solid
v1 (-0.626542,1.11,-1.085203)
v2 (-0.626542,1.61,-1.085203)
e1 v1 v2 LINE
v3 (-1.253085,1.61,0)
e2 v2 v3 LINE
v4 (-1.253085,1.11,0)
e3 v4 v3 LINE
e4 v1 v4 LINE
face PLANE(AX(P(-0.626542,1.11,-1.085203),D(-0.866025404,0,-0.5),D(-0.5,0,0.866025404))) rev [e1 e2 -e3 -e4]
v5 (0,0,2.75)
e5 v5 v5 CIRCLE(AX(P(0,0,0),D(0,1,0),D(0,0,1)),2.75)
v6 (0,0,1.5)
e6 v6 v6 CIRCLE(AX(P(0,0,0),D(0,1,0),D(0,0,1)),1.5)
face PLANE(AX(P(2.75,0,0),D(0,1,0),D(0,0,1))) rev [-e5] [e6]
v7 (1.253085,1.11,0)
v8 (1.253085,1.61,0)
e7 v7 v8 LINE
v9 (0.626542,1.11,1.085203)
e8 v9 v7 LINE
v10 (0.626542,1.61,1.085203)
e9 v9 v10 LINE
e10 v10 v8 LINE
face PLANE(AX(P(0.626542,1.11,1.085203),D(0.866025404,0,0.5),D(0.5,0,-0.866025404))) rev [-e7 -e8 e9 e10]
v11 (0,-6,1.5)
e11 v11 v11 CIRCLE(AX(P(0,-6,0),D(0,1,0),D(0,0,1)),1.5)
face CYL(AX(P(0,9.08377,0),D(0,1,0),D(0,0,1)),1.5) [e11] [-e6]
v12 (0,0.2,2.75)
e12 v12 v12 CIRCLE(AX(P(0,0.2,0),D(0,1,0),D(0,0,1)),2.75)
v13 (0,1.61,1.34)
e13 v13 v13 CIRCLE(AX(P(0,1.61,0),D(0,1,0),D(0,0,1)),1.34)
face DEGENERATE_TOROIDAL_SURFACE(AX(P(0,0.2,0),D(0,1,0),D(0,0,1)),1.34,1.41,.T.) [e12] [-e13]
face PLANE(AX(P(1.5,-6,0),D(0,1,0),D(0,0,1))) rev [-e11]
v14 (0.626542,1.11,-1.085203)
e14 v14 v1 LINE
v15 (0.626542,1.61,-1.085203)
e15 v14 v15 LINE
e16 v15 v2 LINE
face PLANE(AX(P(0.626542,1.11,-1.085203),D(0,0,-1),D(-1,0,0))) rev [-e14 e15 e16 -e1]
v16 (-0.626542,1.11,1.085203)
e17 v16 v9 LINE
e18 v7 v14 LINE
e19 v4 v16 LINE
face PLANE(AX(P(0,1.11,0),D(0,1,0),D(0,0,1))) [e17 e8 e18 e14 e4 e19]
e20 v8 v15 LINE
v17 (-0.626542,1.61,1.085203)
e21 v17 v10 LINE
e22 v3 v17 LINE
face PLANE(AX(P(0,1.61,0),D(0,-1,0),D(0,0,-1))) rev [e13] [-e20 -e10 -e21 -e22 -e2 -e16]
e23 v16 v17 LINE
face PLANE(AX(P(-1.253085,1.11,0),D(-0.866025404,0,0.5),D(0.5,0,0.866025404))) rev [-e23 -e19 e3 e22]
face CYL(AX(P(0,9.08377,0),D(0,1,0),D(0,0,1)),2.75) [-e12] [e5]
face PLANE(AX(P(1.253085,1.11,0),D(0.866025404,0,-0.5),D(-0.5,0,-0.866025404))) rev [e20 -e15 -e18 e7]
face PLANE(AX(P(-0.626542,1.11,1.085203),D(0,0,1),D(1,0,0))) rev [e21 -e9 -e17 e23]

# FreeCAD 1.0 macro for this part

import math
import FreeCAD as App
import Part
import Sketcher
from FreeCAD import Vector
Q = App.Units.Quantity

doc = App.newDocument("Part")
body = doc.addObject("PartDesign::Body", "Body")

sketch1 = body.newObject("Sketcher::SketchObject", "Sketch")
sketch1.AttachmentSupport = (doc.getObject("XY_Plane"), [""])
sketch1.MapMode = "FlatFace"
sketch1.addGeometry([
    Part.LineSegment(Vector(1.34, 1.61, 0), Vector(0, 1.61, 0)),
    Part.LineSegment(Vector(0, 1.61, 0), Vector(0, -6, 0)),
    Part.LineSegment(Vector(0, -6, 0), Vector(1.5, -6, 0)),
    Part.LineSegment(Vector(1.5, -6, 0), Vector(1.5, 0, 0)),
    Part.LineSegment(Vector(1.5, 0, 0), Vector(2.75, 0, 0)),
    Part.LineSegment(Vector(2.75, 0, 0), Vector(2.75, 0.2, 0)),
    Part.ArcOfCircle(Part.Circle(Vector(1.34, 0.2, 0), Vector(0, 0, 1), 1.41), math.radians(0), math.radians(90)),
], False)
sketch1.addConstraint([
    Sketcher.Constraint("Coincident", 0, 2, 1, 1),
    Sketcher.Constraint("Coincident", 1, 2, 2, 1),
    Sketcher.Constraint("Coincident", 2, 2, 3, 1),
    Sketcher.Constraint("Coincident", 3, 2, 4, 1),
    Sketcher.Constraint("Coincident", 4, 2, 5, 1),
    Sketcher.Constraint("Tangent", 5, 2, 6, 1),
    Sketcher.Constraint("Tangent", 6, 2, 0, 1),
    Sketcher.Constraint("Horizontal", 0),
    Sketcher.Constraint("Vertical", 1),
    Sketcher.Constraint("Horizontal", 2),
    Sketcher.Constraint("Vertical", 3),
    Sketcher.Constraint("Horizontal", 4),
    Sketcher.Constraint("Vertical", 5),
    Sketcher.Constraint("PointOnObject", 0, 2, -2),
    Sketcher.Constraint("PointOnObject", 3, 2, -1),
    Sketcher.Constraint("DistanceY", 3, 1, 3, 2, 6.0),
    Sketcher.Constraint("Radius", 6, 1.41),
    Sketcher.Constraint("DistanceX", 2, 1, 2, 2, 1.5),
    Sketcher.Constraint("DistanceY", 5, 1, 5, 2, 0.2),
    Sketcher.Constraint("DistanceX", 0, 2, 0, 1, 1.34),
])
revolution = body.newObject("PartDesign::Revolution", "Revolution")
revolution.Profile = sketch1
revolution.ReferenceAxis = (sketch1, ["V_Axis"])
revolution.Angle = 360

sketch2 = body.newObject("Sketcher::SketchObject", "Sketch001")
sketch2.AttachmentSupport = (doc.getObject("XZ_Plane"), [""])
sketch2.MapMode = "FlatFace"
sketch2.AttachmentOffset = App.Placement(Vector(0, 0, -1.61), App.Rotation())
sketch2.addGeometry([
    Part.LineSegment(Vector(0.6, -1.1, 0), Vector(-0.6, -1.1, 0)),
    Part.LineSegment(Vector(-0.6, -1.1, 0), Vector(-1.3, 0, 0)),
    Part.LineSegment(Vector(-1.3, 0, 0), Vector(-0.6, 1.1, 0)),
    Part.LineSegment(Vector(-0.6, 1.1, 0), Vector(0.6, 1.1, 0)),
    Part.LineSegment(Vector(0.6, 1.1, 0), Vector(1.3, 0, 0)),
    Part.LineSegment(Vector(1.3, 0, 0), Vector(0.6, -1.1, 0)),
], False)
sketch2.addConstraint([
    Sketcher.Constraint("Coincident", 0, 2, 1, 1),
    Sketcher.Constraint("Coincident", 1, 2, 2, 1),
    Sketcher.Constraint("Coincident", 2, 2, 3, 1),
    Sketcher.Constraint("Coincident", 3, 2, 4, 1),
    Sketcher.Constraint("Coincident", 4, 2, 5, 1),
    Sketcher.Constraint("Coincident", 5, 2, 0, 1),
    Sketcher.Constraint("Horizontal", 0),
    Sketcher.Constraint("Horizontal", 3),
    Sketcher.Constraint("Symmetric", 0, 2, 3, 2, -1, 1),
    Sketcher.Constraint("Symmetric", 1, 2, 4, 2, -1, 1),
    Sketcher.Constraint("PointOnObject", 1, 2, -1),
    Sketcher.Constraint("Parallel", 2, 5),
    Sketcher.Constraint("Vertical", 0, 2, 2, 2),
    Sketcher.Constraint("Angle", 1, Q("120 deg")),
    Sketcher.Constraint("DistanceX", 0, 2, 0, 1, 1.253085),
    Sketcher.Constraint("DistanceX", 1, 2, 4, 2, 2.50617),
])
pocket1 = body.newObject("PartDesign::Pocket", "Pocket")
pocket1.Profile = sketch2
pocket1.Length = 0.5
pocket1.Reversed = True

doc.recompute()
